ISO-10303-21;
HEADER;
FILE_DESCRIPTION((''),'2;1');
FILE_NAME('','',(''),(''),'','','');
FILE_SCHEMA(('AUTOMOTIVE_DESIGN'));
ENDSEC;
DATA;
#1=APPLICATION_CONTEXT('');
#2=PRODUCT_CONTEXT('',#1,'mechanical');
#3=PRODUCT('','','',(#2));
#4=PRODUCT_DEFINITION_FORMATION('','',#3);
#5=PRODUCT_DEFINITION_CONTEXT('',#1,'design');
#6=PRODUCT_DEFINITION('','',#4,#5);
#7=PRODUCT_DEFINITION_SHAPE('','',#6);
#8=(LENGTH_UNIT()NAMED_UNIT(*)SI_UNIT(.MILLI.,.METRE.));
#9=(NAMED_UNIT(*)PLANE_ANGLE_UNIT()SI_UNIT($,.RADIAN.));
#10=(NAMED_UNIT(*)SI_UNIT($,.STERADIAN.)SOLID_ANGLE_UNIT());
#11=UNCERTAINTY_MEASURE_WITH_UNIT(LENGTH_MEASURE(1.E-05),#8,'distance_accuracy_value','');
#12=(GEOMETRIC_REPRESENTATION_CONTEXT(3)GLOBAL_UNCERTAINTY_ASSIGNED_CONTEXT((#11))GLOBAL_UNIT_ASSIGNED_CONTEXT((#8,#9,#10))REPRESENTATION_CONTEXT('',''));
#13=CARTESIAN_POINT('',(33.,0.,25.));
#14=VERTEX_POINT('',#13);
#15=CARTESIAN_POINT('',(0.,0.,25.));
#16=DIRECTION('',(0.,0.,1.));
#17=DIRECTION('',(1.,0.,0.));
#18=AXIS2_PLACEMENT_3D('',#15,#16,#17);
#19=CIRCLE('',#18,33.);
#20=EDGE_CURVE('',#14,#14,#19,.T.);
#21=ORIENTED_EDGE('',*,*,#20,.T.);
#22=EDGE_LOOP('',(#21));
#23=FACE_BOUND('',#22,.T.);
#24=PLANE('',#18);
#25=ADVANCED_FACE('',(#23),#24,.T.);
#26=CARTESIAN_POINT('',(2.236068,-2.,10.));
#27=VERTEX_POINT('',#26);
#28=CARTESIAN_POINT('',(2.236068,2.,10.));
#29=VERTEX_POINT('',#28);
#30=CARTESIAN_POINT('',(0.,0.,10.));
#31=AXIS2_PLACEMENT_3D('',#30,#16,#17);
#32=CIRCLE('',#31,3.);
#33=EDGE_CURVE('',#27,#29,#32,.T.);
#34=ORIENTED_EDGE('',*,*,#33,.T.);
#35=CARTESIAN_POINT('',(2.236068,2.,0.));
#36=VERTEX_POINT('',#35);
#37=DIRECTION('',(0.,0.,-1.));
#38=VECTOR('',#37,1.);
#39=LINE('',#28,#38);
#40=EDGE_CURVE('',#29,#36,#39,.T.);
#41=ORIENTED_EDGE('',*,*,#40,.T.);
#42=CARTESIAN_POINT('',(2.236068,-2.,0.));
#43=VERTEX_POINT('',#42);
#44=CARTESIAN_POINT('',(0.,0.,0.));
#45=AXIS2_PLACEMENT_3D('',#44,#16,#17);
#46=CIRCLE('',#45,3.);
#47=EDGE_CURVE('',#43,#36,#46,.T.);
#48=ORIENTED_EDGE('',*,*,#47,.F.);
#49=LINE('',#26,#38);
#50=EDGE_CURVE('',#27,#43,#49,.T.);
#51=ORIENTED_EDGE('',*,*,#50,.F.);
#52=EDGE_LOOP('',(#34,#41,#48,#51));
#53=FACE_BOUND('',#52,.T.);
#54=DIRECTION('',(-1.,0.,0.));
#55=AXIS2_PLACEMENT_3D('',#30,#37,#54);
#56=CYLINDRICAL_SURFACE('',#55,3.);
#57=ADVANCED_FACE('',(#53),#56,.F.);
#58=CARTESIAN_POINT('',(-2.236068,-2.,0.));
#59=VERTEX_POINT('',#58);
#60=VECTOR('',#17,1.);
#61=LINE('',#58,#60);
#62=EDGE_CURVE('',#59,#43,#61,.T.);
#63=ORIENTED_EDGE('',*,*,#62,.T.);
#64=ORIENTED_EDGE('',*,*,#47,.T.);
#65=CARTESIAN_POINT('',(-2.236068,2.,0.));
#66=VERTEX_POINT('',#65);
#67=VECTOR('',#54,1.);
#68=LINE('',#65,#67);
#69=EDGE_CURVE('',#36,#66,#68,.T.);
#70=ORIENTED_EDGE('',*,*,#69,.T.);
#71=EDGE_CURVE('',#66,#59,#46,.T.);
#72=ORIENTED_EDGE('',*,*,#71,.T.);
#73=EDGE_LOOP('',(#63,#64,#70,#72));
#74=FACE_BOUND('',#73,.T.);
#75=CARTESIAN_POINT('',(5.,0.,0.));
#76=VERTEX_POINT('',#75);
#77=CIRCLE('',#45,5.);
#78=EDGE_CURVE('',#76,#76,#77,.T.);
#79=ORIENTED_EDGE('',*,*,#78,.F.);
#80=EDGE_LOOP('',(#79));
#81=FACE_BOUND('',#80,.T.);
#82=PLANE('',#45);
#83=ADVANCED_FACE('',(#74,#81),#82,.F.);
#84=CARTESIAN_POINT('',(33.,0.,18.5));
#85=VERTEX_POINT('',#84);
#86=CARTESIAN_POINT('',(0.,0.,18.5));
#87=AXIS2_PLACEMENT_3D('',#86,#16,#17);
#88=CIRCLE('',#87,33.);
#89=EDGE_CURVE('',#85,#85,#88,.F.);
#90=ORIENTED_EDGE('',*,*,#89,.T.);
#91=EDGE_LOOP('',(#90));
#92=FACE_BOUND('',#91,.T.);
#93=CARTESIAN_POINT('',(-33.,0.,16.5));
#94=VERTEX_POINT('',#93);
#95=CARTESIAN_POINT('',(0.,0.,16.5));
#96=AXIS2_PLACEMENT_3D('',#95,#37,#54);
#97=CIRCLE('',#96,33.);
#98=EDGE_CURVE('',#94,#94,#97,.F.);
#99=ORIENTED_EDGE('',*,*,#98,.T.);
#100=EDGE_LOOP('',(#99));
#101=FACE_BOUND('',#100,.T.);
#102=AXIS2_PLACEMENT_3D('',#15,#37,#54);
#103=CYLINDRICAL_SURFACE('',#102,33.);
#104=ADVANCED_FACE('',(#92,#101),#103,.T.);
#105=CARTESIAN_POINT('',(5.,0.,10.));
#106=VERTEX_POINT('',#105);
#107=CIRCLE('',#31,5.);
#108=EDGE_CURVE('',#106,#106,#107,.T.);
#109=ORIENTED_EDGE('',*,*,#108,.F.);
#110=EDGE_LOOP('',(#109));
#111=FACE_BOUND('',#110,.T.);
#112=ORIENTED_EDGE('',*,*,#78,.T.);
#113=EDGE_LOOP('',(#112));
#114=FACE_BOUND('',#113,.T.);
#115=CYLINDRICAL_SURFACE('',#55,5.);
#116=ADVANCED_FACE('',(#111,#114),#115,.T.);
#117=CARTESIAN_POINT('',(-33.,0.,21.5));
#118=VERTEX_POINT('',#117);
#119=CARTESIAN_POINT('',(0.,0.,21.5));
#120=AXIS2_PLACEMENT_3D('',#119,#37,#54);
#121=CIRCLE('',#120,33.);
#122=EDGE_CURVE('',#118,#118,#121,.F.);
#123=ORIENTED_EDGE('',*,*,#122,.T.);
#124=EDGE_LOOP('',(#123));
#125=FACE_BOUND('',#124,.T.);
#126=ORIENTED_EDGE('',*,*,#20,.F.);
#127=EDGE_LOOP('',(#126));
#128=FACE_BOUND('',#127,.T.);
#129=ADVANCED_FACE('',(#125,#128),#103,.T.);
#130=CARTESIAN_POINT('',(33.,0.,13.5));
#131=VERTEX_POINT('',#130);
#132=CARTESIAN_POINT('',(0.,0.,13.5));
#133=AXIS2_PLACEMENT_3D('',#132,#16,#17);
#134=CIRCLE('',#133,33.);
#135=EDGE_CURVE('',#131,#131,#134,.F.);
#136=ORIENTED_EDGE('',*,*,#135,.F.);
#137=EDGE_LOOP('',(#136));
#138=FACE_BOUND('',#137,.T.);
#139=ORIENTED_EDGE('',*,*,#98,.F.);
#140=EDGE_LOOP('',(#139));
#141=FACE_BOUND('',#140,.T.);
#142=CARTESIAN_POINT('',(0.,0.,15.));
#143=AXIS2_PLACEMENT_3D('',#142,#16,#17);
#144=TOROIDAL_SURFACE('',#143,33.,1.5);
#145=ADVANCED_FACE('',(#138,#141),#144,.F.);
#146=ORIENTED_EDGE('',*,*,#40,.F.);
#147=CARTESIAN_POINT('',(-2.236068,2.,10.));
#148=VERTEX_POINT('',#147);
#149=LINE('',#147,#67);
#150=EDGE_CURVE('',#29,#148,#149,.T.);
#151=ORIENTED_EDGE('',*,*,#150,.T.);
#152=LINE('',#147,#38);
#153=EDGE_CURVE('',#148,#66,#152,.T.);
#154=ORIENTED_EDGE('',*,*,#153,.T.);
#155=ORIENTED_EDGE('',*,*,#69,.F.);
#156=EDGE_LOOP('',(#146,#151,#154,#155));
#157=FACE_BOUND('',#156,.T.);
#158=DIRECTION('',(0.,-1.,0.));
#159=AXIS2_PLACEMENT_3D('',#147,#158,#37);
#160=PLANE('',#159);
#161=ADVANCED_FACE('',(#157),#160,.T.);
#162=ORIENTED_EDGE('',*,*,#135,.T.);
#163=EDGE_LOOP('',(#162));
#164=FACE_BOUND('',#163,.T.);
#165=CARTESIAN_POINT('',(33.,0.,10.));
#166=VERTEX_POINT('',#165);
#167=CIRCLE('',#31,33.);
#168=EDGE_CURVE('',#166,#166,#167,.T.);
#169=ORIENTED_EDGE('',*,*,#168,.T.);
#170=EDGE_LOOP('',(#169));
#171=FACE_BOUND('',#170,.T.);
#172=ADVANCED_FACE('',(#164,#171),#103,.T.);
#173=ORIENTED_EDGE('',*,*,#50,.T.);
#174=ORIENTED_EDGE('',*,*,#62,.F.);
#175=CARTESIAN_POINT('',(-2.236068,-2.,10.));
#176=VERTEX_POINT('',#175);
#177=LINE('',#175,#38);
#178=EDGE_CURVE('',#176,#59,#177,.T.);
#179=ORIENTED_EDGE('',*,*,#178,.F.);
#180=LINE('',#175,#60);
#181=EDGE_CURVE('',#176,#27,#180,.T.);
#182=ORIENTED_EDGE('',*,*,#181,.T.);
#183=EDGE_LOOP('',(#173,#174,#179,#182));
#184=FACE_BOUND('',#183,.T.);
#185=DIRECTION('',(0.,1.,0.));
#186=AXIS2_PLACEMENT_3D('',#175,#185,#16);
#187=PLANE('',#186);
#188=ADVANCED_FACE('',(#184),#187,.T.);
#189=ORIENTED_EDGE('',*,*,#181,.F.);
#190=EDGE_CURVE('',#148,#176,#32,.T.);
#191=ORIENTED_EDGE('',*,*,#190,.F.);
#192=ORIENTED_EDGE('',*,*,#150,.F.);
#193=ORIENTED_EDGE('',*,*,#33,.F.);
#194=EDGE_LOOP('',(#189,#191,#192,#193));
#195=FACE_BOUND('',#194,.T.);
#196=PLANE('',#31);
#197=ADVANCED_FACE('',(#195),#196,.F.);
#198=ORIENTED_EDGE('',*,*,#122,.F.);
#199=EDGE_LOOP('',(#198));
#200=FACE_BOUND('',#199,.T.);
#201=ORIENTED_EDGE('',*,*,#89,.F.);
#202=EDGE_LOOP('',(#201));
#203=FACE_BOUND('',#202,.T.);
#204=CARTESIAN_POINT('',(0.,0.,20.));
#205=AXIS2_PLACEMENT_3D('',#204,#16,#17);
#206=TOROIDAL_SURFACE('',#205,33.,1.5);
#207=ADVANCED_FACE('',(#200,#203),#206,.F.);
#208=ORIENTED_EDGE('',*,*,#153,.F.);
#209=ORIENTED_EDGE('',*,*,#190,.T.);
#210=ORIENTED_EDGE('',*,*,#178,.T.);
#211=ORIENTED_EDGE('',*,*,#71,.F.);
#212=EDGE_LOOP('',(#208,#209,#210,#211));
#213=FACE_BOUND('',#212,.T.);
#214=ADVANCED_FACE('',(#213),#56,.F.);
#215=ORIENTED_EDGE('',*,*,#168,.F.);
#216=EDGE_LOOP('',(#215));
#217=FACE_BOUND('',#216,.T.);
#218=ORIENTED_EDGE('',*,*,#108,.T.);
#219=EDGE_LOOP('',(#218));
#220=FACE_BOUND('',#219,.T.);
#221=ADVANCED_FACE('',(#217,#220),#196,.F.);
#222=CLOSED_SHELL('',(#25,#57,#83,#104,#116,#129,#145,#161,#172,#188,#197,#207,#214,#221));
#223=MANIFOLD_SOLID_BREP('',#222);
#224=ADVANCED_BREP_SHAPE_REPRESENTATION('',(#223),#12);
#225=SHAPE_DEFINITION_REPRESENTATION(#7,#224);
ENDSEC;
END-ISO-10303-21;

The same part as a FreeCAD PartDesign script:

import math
import FreeCAD as App
import Part
import Sketcher

doc = App.newDocument("Part")
body = doc.addObject("PartDesign::Body", "Body")

# Sketch on XY plane
sketch1 = body.newObject("Sketcher::SketchObject", "Sketch")
sketch1.AttachmentSupport = (doc.getObject("XY_Plane"), [""])
sketch1.MapMode = "FlatFace"
sketch1.addGeometry(Part.Circle(App.Vector(0, 0, 0), App.Vector(0, 0, 1), 5), False)
sketch1.addGeometry(Part.LineSegment(App.Vector(2.2, -2, 0), App.Vector(-2.2, -2, 0)), False)
sketch1.addGeometry(Part.ArcOfCircle(Part.Circle(App.Vector(0, 0, 0), App.Vector(0, 0, 1), 3), math.radians(138), math.radians(222)), False)
sketch1.addGeometry(Part.LineSegment(App.Vector(-2.2, 2, 0), App.Vector(2.2, 2, 0)), False)
sketch1.addGeometry(Part.ArcOfCircle(Part.Circle(App.Vector(0, 0, 0), App.Vector(0, 0, 1), 3), math.radians(-42), math.radians(42)), False)
sketch1.addConstraint(Sketcher.Constraint("Coincident", 1, 2, 2, 2))
sketch1.addConstraint(Sketcher.Constraint("Coincident", 2, 1, 3, 1))
sketch1.addConstraint(Sketcher.Constraint("Coincident", 3, 2, 4, 2))
sketch1.addConstraint(Sketcher.Constraint("Coincident", 4, 1, 1, 1))
sketch1.addConstraint(Sketcher.Constraint("Horizontal", 1))
sketch1.addConstraint(Sketcher.Constraint("Horizontal", 3))
sketch1.addConstraint(Sketcher.Constraint("Coincident", 0, 3, -1, 1))
sketch1.addConstraint(Sketcher.Constraint("Coincident", 2, 3, -1, 1))
sketch1.addConstraint(Sketcher.Constraint("Coincident", 4, 3, -1, 1))
sketch1.addConstraint(Sketcher.Constraint("Equal", 2, 4))
sketch1.addConstraint(Sketcher.Constraint("Vertical", 1, 2, 2, 1))
sketch1.addConstraint(Sketcher.Constraint("Diameter", 0, 10.0))
sketch1.addConstraint(Sketcher.Constraint("Radius", 2, 3.0))
sketch1.addConstraint(Sketcher.Constraint("DistanceY", 1, 2, -1, 1, 2.0))
pad1 = body.newObject("PartDesign::Pad", "Pad")
pad1.Profile = sketch1
pad1.Length = 10

# Sketch on XY plane
sketch2 = body.newObject("Sketcher::SketchObject", "Sketch001")
sketch2.AttachmentSupport = (doc.getObject("XY_Plane"), [""])
sketch2.MapMode = "FlatFace"
sketch2.AttachmentOffset = App.Placement(App.Vector(0, 0, 10), App.Rotation())
sketch2.addGeometry(Part.Circle(App.Vector(0, 0, 0), App.Vector(0, 0, 1), 33), False)
sketch2.addConstraint(Sketcher.Constraint("Coincident", 0, 3, -1, 1))
sketch2.addConstraint(Sketcher.Constraint("Diameter", 0, 66.0))
pad2 = body.newObject("PartDesign::Pad", "Pad001")
pad2.Profile = sketch2
pad2.Length = 15

# Sketch on XZ plane
sketch3 = body.newObject("Sketcher::SketchObject", "Sketch002")
sketch3.AttachmentSupport = (doc.getObject("XZ_Plane"), [""])
sketch3.MapMode = "FlatFace"
sketch3.addGeometry(Part.Circle(App.Vector(33, 15, 0), App.Vector(0, 0, 1), 1.5), False)
sketch3.addGeometry(Part.Circle(App.Vector(33, 20, 0), App.Vector(0, 0, 1), 1.5), False)
sketch3.addConstraint(Sketcher.Constraint("Equal", 0, 1))
sketch3.addConstraint(Sketcher.Constraint("Vertical", 0, 3, 1, 3))
sketch3.addConstraint(Sketcher.Constraint("Diameter", 0, 3.0))
sketch3.addConstraint(Sketcher.Constraint("DistanceX", -1, 1, 0, 3, 33.0))
sketch3.addConstraint(Sketcher.Constraint("DistanceY", -1, 1, 0, 3, 15.0))
sketch3.addConstraint(Sketcher.Constraint("DistanceY", -1, 1, 1, 3, 20.0))
groove = body.newObject("PartDesign::Groove", "Groove")
groove.Profile = sketch3
groove.ReferenceAxis = (sketch3, ["V_Axis"])
groove.Angle = 360

doc.recompute()
